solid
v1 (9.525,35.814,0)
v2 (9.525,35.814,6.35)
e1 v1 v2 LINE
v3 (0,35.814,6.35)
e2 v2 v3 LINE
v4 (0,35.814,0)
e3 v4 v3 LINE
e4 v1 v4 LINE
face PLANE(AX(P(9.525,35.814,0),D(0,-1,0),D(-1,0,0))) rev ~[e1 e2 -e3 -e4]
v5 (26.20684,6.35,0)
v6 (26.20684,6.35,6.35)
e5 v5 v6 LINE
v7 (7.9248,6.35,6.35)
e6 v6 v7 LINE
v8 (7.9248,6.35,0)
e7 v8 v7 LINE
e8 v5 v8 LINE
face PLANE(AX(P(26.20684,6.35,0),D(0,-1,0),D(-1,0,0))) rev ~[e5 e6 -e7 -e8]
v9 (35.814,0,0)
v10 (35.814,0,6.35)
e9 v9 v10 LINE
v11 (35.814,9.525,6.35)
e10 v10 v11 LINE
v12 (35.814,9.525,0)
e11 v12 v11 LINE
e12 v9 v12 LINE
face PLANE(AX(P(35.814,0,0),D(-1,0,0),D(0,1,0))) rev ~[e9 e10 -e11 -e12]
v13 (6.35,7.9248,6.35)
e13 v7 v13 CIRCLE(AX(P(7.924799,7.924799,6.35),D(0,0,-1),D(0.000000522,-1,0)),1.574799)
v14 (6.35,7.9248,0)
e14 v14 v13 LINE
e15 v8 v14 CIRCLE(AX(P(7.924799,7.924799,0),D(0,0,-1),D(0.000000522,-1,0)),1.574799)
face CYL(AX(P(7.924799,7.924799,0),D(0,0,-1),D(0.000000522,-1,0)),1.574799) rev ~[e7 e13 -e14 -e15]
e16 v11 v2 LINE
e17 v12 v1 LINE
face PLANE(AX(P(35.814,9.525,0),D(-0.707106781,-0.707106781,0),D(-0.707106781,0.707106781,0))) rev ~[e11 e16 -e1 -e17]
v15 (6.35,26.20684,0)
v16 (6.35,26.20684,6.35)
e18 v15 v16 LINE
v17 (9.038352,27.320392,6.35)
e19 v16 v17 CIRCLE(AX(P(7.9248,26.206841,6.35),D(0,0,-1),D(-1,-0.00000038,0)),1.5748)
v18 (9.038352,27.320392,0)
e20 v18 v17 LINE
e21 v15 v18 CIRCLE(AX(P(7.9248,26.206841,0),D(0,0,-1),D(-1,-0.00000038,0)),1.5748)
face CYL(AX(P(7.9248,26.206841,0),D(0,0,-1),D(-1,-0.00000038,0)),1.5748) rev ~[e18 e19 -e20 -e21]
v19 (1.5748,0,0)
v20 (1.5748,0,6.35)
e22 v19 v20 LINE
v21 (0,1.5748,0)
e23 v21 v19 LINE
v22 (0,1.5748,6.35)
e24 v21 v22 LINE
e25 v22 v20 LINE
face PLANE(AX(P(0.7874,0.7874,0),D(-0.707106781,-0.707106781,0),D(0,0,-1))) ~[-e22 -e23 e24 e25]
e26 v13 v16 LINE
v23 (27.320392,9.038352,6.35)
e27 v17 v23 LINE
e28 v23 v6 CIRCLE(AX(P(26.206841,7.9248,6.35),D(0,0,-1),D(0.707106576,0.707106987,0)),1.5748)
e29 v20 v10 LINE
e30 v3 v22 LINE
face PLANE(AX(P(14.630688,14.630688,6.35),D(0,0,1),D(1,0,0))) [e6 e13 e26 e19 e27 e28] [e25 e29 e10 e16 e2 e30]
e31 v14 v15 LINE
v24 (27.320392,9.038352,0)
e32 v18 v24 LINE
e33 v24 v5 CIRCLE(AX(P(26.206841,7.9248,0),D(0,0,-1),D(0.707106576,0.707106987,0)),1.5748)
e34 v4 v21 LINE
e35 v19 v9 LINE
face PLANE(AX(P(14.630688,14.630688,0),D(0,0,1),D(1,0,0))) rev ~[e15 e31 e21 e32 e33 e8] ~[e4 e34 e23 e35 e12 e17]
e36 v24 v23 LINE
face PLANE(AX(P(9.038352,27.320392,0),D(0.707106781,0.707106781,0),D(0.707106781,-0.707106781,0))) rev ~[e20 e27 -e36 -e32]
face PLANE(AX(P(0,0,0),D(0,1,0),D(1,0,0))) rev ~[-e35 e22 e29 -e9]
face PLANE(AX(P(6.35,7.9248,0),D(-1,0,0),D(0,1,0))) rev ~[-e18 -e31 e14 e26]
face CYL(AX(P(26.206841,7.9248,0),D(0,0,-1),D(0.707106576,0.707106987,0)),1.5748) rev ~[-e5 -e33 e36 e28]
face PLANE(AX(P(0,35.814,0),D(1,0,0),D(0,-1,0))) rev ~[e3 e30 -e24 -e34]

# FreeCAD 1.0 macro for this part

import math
import FreeCAD as App
import Part
import Sketcher
from FreeCAD import Vector
Q = App.Units.Quantity


def edges_at(feature, points):
    """Names of the edges that pass closest to the given points."""
    edges = feature.Shape.Edges
    near = lambda p: min(range(len(edges)), key=lambda i: edges[i].distToShape(Part.Vertex(*p))[0])
    return sorted({f"Edge{near(p) + 1}" for p in points})


def add_polygon(sketch, points):
    """Adds a closed chain of lines whose ends are joined by coincident constraints."""
    first, n = sketch.GeometryCount, len(points)
    for a, b in zip(points, points[1:] + points[:1]):
        sketch.addGeometry(Part.LineSegment(App.Vector(*a, 0), App.Vector(*b, 0)), False)
    for i in range(n):
        sketch.addConstraint(Sketcher.Constraint("Coincident", first + i, 2, first + (i + 1) % n, 1))

doc = App.newDocument("Part")
params = doc.addObject("Spreadsheet::Sheet", "Params")
for row, (alias, value) in enumerate([
    ("sketch1_radius", "0.062 in"),
    ("sketch1_width", "1.41 in"),
    ("sketch1_width2", "0.375 in"),
    ("pad1_length", "0.25 in"),
    ("chamfer_size", "0.062 in"),
], start=1):
    params.set(f"A{row}", alias)
    params.set(f"B{row}", "=" + value)
    params.setAlias(f"B{row}", alias)

body = doc.addObject("PartDesign::Body", "Body")

sketch1 = body.newObject("Sketcher::SketchObject", "Sketch")
sketch1.AttachmentSupport = (doc.getObject("XY_Plane"), [""])
sketch1.MapMode = "FlatFace"
add_polygon(sketch1, [(9.5, 35.8), (0, 35.8), (0, 0), (35.8, 0), (35.8, 9.5)])
sketch1.addGeometry(Part.ArcOfCircle(Part.Circle(Vector(7.9, 7.9, 0), Vector(0, 0, 1), 1.6), math.radians(180), math.radians(270)), False)
sketch1.addGeometry(Part.LineSegment(Vector(6.3, 7.9, 0), Vector(6.3, 26.2, 0)), False)
sketch1.addGeometry(Part.ArcOfCircle(Part.Circle(Vector(7.9, 26.2, 0), Vector(0, 0, 1), 1.6), math.radians(45), math.radians(180)), False)
sketch1.addGeometry(Part.LineSegment(Vector(9, 27.3, 0), Vector(27.3, 9, 0)), False)
sketch1.addGeometry(Part.ArcOfCircle(Part.Circle(Vector(26.2, 7.9, 0), Vector(0, 0, 1), 1.6), math.radians(-90), math.radians(45)), False)
sketch1.addGeometry(Part.LineSegment(Vector(26.2, 6.3, 0), Vector(7.9, 6.3, 0)), False)
sketch1.addConstraint([
    Sketcher.Constraint("Tangent", 5, 1, 6, 1),
    Sketcher.Constraint("Tangent", 6, 2, 7, 2),
    Sketcher.Constraint("Tangent", 7, 1, 8, 1),
    Sketcher.Constraint("Tangent", 8, 2, 9, 2),
    Sketcher.Constraint("Tangent", 9, 1, 10, 1),
    Sketcher.Constraint("Tangent", 10, 2, 5, 2),
    Sketcher.Constraint("Horizontal", 0),
    Sketcher.Constraint("Vertical", 1),
    Sketcher.Constraint("Horizontal", 2),
    Sketcher.Constraint("Vertical", 3),
    Sketcher.Constraint("Vertical", 6),
    Sketcher.Constraint("Horizontal", 10),
    Sketcher.Constraint("Coincident", 1, 2, -1, 1),
    Sketcher.Constraint("Equal", 5, 7),
    Sketcher.Constraint("Equal", 7, 9),
    Sketcher.Constraint("Parallel", 4, 8),
    Sketcher.Constraint("Equal", 2, 1),
    Sketcher.Constraint("Equal", 0, 3),
    Sketcher.Constraint("Radius", 5, Q("0.062 in")),
    Sketcher.Constraint("DistanceX", 2, 1, 2, 2, Q("1.41 in")),
    Sketcher.Constraint("DistanceX", 0, 2, 0, 1, Q("0.375 in")),
    Sketcher.Constraint("DistanceX", -1, 1, 5, 1, Q("0.25 in")),
    Sketcher.Constraint("DistanceY", -1, 1, 9, 1, Q("0.25 in")),
    Sketcher.Constraint("DistanceX", 10, 2, 10, 1, 18.28204),
])
sketch1.setExpression("Constraints[23]", "Params.sketch1_radius")
sketch1.setExpression("Constraints[24]", "Params.sketch1_width")
sketch1.setExpression("Constraints[25]", "Params.sketch1_width2")
pad1 = body.newObject("PartDesign::Pad", "Pad")
pad1.Profile = sketch1
pad1.setExpression("Length", "Params.pad1_length")
doc.recompute()

chamfer = body.newObject("PartDesign::Chamfer", "Chamfer")
chamfer.Base = (pad1, edges_at(pad1, [(0, 0, 3.175)]))
chamfer.setExpression("Size", "Params.chamfer_size")

doc.recompute()
